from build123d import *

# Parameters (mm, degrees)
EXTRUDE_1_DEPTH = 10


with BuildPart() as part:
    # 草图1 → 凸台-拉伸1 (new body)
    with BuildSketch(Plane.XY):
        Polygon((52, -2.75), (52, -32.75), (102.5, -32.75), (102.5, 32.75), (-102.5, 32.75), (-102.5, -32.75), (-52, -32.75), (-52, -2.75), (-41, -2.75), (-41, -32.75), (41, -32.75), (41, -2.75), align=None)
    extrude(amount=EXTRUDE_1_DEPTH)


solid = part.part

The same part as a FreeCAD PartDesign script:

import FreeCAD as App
import Part
import Sketcher

doc = App.newDocument("Part")
body = doc.addObject("PartDesign::Body", "Body")

sketch1 = body.newObject("Sketcher::SketchObject", "Sketch")
sketch1.AttachmentSupport = (doc.getObject("XY_Plane"), [""])
sketch1.MapMode = "FlatFace"
sketch1.addGeometry([
    Part.LineSegment(App.Vector(52, -2.75, 0), App.Vector(52, -32.75, 0)),
    Part.LineSegment(App.Vector(52, -32.75, 0), App.Vector(102.5, -32.75, 0)),
    Part.LineSegment(App.Vector(102.5, -32.75, 0), App.Vector(102.5, 32.75, 0)),
    Part.LineSegment(App.Vector(102.5, 32.75, 0), App.Vector(-102.5, 32.75, 0)),
    Part.LineSegment(App.Vector(-102.5, 32.75, 0), App.Vector(-102.5, -32.75, 0)),
    Part.LineSegment(App.Vector(-102.5, -32.75, 0), App.Vector(-52, -32.75, 0)),
    Part.LineSegment(App.Vector(-52, -32.75, 0), App.Vector(-52, -2.75, 0)),
    Part.LineSegment(App.Vector(-52, -2.75, 0), App.Vector(-41, -2.75, 0)),
    Part.LineSegment(App.Vector(-41, -2.75, 0), App.Vector(-41, -32.75, 0)),
    Part.LineSegment(App.Vector(-41, -32.75, 0), App.Vector(41, -32.75, 0)),
    Part.LineSegment(App.Vector(41, -32.75, 0), App.Vector(41, -2.75, 0)),
    Part.LineSegment(App.Vector(41, -2.75, 0), App.Vector(52, -2.75, 0)),
], False)
sketch1.addConstraint([
    Sketcher.Constraint("Coincident", 0, 2, 1, 1),
    Sketcher.Constraint("Coincident", 1, 2, 2, 1),
    Sketcher.Constraint("Coincident", 2, 2, 3, 1),
    Sketcher.Constraint("Coincident", 3, 2, 4, 1),
    Sketcher.Constraint("Coincident", 4, 2, 5, 1),
    Sketcher.Constraint("Coincident", 5, 2, 6, 1),
    Sketcher.Constraint("Coincident", 6, 2, 7, 1),
    Sketcher.Constraint("Coincident", 7, 2, 8, 1),
    Sketcher.Constraint("Coincident", 8, 2, 9, 1),
    Sketcher.Constraint("Coincident", 9, 2, 10, 1),
    Sketcher.Constraint("Coincident", 10, 2, 11, 1),
    Sketcher.Constraint("Coincident", 11, 2, 0, 1),
    Sketcher.Constraint("Vertical", 0),
    Sketcher.Constraint("Horizontal", 1),
    Sketcher.Constraint("Vertical", 2),
    Sketcher.Constraint("Horizontal", 3),
    Sketcher.Constraint("Vertical", 4),
    Sketcher.Constraint("Horizontal", 5),
    Sketcher.Constraint("Vertical", 6),
    Sketcher.Constraint("Horizontal", 7),
    Sketcher.Constraint("Vertical", 8),
    Sketcher.Constraint("Horizontal", 9),
    Sketcher.Constraint("Vertical", 10),
    Sketcher.Constraint("Horizontal", 11),
    Sketcher.Constraint("Symmetric", 1, 2, 3, 2, -1, 1),
    Sketcher.Constraint("Symmetric", 0, 2, 5, 2, -2),
    Sketcher.Constraint("Symmetric", 7, 2, 10, 2, -2),
    Sketcher.Constraint("Horizontal", 5, 2, 8, 2),
    Sketcher.Constraint("DistanceX", 3, 2, 3, 1, 205.0),
    Sketcher.Constraint("DistanceX", 7, 1, 7, 2, 11.0),
    Sketcher.Constraint("DistanceX", 9, 1, 9, 2, 82.0),
    Sketcher.Constraint("DistanceY", 0, 2, 0, 1, 30.0),
    Sketcher.Constraint("DistanceY", 2, 1, 2, 2, 65.5),
])
pad1 = body.newObject("PartDesign::Pad", "Pad")
pad1.Profile = sketch1
pad1.Length = 10

doc.recompute()
